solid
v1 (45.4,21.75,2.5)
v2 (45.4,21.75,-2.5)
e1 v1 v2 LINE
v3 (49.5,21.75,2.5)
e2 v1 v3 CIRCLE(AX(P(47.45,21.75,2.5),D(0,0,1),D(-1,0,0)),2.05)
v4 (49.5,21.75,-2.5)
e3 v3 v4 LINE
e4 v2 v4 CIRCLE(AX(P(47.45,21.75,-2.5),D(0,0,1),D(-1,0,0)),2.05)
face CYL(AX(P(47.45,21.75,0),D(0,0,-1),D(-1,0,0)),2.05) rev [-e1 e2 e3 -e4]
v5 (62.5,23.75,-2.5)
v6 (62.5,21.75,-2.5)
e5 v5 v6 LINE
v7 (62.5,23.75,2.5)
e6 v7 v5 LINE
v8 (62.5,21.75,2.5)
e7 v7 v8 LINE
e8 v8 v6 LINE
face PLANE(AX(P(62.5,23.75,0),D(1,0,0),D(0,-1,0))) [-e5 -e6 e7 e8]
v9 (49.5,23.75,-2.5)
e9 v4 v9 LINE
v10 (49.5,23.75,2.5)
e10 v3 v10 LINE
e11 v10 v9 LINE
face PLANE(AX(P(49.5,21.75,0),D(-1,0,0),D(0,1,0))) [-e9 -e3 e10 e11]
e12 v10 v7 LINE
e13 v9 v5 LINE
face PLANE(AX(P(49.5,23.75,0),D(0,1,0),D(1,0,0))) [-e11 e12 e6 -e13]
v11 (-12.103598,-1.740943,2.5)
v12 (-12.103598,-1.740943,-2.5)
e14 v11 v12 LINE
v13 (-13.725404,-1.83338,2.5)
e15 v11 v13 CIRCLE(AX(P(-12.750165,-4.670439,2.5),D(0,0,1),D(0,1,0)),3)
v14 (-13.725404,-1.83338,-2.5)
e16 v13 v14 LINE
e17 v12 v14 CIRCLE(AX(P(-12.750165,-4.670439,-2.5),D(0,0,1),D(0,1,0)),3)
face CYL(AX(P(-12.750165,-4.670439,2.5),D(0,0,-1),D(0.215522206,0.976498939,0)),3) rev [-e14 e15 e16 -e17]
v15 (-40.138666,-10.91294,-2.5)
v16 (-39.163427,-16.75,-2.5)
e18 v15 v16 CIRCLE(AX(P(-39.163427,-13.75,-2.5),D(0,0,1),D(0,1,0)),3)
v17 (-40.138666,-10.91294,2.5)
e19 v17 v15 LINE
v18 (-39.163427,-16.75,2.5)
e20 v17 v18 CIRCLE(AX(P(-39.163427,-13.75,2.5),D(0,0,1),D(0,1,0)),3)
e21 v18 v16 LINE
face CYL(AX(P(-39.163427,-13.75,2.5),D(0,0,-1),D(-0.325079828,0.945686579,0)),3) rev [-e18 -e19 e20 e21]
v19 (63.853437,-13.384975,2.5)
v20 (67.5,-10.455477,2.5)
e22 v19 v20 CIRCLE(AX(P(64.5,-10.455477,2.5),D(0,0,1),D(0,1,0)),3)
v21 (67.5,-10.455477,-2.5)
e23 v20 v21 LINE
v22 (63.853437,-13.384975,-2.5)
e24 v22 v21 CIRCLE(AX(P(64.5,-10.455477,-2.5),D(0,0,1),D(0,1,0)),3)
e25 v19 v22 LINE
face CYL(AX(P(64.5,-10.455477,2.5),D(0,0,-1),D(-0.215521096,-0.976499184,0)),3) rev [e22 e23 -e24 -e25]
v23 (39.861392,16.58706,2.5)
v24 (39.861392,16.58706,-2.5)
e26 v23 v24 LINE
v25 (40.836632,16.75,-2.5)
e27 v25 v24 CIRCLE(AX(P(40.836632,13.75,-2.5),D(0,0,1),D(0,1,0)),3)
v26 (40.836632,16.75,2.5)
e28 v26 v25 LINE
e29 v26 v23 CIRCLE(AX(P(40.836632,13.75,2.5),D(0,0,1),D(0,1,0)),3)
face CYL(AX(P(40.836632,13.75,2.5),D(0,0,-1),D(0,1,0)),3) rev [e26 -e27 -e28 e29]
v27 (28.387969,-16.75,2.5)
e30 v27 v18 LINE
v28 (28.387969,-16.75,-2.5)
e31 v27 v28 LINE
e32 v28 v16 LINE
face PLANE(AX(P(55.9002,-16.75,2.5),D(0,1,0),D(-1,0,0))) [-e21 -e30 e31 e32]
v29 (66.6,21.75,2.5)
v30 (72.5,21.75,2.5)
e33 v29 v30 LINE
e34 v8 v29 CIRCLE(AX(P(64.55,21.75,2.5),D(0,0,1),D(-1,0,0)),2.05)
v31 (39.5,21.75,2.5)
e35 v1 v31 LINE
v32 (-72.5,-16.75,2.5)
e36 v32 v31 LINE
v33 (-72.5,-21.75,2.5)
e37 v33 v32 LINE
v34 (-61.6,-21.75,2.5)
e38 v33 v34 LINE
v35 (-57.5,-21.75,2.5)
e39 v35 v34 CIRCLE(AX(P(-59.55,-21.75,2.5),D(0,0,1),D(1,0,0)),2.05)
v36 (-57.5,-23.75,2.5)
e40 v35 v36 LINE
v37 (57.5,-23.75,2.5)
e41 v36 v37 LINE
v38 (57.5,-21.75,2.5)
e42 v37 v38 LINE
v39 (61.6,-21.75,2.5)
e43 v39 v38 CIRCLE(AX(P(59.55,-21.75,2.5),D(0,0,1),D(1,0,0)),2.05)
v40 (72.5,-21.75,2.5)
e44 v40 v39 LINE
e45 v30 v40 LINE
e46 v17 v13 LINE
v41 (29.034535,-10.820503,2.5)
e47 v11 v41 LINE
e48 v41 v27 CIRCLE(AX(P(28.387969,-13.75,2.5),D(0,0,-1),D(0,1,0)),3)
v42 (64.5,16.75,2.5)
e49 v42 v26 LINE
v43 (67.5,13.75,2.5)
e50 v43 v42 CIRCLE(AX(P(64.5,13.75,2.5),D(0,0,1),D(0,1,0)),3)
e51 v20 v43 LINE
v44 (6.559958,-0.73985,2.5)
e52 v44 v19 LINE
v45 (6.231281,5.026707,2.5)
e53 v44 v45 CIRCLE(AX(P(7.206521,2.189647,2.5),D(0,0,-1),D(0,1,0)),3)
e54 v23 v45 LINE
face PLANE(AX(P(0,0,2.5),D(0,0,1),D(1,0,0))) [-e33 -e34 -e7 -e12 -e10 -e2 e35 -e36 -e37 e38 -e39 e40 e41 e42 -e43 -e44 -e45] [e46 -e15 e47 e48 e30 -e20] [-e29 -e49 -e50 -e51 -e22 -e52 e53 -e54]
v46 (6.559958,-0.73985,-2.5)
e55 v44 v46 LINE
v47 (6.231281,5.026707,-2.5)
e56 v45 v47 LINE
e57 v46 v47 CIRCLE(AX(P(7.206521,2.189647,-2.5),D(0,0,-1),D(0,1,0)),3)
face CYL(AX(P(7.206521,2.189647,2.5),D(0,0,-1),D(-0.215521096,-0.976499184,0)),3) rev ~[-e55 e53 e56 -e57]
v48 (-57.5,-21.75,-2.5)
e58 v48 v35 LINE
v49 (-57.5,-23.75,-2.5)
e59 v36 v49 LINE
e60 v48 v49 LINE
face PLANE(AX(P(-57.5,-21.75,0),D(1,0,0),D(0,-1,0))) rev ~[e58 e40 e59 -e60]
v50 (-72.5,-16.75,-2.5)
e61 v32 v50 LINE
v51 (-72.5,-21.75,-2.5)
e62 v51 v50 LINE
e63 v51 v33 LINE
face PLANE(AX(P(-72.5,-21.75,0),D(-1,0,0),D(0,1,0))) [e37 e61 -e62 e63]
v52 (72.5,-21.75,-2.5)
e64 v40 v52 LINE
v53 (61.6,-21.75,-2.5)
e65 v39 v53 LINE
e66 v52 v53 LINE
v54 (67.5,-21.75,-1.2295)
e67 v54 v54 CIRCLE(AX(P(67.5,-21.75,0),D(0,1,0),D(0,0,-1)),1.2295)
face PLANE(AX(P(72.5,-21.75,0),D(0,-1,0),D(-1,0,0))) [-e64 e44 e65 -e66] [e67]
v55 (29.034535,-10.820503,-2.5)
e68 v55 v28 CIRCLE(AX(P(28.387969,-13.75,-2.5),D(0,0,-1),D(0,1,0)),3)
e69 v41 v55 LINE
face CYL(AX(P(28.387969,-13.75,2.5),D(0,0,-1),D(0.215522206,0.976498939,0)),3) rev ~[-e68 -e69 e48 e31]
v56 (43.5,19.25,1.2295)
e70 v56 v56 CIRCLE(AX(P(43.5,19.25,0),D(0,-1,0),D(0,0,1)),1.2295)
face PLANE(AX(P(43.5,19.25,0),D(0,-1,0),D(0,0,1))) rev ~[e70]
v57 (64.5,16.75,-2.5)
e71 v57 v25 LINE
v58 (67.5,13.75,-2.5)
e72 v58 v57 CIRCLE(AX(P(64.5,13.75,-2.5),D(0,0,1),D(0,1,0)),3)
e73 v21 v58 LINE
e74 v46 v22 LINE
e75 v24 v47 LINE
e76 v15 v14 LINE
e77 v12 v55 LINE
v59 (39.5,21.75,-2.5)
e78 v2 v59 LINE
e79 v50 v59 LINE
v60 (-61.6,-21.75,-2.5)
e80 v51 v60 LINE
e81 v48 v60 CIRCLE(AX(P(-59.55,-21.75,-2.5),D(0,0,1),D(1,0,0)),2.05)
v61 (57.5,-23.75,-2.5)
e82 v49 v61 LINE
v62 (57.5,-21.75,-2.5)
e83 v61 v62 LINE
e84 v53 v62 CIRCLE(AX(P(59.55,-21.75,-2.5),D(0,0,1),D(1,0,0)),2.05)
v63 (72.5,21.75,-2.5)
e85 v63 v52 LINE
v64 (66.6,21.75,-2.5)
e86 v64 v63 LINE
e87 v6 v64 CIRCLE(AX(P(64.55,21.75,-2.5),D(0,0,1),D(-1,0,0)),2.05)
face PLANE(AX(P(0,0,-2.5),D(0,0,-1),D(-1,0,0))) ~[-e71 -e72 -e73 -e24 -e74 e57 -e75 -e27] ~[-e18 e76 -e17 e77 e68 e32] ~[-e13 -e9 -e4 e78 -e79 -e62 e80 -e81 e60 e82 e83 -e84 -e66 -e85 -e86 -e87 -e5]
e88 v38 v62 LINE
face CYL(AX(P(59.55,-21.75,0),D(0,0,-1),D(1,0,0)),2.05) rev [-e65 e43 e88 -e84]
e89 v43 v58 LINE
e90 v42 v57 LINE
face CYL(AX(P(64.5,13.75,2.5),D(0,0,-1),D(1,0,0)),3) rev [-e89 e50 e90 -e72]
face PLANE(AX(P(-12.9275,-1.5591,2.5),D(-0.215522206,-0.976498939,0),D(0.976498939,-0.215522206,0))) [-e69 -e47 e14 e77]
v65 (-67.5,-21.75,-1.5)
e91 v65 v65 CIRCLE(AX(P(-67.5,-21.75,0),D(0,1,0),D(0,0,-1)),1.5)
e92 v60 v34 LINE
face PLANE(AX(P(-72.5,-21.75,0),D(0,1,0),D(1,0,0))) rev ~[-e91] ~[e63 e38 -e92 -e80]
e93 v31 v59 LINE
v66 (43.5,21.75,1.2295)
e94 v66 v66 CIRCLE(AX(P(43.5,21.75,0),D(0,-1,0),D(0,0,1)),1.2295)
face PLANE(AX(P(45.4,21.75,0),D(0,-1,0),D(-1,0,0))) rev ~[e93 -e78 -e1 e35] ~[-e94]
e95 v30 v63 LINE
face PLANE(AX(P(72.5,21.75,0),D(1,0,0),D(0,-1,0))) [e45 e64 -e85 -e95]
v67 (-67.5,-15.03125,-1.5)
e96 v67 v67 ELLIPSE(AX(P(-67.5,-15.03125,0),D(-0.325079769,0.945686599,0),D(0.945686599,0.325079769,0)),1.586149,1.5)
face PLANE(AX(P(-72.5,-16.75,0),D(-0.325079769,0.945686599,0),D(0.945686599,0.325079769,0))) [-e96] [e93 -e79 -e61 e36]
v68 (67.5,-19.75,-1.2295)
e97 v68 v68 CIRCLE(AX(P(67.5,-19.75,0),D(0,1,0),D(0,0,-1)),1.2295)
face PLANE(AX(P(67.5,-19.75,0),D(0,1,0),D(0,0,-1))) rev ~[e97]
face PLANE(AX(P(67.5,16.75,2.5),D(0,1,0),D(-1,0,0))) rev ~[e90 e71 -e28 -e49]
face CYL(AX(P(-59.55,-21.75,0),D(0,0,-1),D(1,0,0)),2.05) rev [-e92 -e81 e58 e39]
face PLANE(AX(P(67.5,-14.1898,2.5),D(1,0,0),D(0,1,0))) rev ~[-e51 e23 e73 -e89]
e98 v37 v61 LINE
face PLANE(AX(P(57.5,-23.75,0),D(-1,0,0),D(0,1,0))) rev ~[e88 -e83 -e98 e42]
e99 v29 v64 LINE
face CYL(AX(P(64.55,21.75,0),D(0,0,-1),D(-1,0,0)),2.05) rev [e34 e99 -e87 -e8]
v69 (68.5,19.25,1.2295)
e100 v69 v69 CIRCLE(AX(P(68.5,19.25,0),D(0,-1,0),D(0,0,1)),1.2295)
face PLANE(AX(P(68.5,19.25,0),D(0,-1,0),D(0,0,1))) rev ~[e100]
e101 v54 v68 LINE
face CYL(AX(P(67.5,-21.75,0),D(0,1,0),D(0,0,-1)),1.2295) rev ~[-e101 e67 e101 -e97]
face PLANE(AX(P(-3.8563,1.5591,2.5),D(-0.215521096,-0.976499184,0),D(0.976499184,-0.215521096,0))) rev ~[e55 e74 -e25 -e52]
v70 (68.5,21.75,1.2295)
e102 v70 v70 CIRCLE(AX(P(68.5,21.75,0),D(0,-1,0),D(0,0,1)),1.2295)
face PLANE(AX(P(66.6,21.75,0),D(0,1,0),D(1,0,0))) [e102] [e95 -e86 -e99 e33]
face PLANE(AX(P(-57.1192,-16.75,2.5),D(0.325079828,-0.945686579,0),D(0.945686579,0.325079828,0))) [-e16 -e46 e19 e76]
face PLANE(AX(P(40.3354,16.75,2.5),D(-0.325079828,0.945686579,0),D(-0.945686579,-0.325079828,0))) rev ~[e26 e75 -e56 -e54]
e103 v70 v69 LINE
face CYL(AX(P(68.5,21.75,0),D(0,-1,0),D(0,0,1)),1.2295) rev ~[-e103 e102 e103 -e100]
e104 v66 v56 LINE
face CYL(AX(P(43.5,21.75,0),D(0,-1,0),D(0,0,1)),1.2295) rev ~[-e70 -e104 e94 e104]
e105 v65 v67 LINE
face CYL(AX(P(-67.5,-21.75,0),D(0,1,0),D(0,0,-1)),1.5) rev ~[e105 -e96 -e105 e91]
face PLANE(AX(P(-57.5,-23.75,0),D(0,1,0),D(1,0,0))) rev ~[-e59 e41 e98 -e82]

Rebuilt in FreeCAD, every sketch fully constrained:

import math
import FreeCAD as App
import Part
import Sketcher
from FreeCAD import Vector
Q = App.Units.Quantity


def edges_at(feature, points):
    """Names of the edges that pass closest to the given points."""
    edges = feature.Shape.Edges
    near = lambda p: min(range(len(edges)), key=lambda i: edges[i].distToShape(Part.Vertex(*p))[0])
    return sorted({f"Edge{near(p) + 1}" for p in points})

doc = App.newDocument("Part")
body = doc.addObject("PartDesign::Body", "Body")

sketch1 = body.newObject("Sketcher::SketchObject", "Sketch")
sketch1.AttachmentSupport = (doc.getObject("XY_Plane"), [""])
sketch1.MapMode = "FlatFace"
sketch1.addGeometry(Part.LineSegment(Vector(-72.5, -16.8, 0), Vector(-72.5, -21.8, 0)), False)
sketch1.addGeometry(Part.LineSegment(Vector(-72.5, -21.8, 0), Vector(-61.6, -21.8, 0)), False)
sketch1.addGeometry(Part.ArcOfCircle(Part.Circle(Vector(-59.5, -21.8, 0), Vector(0, 0, 1), 2), math.radians(0), math.radians(180)), False)
sketch1.addGeometry(Part.LineSegment(Vector(-57.5, -21.8, 0), Vector(-57.5, -23.8, 0)), False)
sketch1.addGeometry(Part.LineSegment(Vector(-57.5, -23.8, 0), Vector(57.5, -23.8, 0)), False)
sketch1.addGeometry(Part.LineSegment(Vector(57.5, -23.8, 0), Vector(57.5, -21.8, 0)), False)
sketch1.addGeometry(Part.ArcOfCircle(Part.Circle(Vector(59.5, -21.8, 0), Vector(0, 0, 1), 2.1), math.radians(0), math.radians(180)), False)
sketch1.addGeometry(Part.LineSegment(Vector(61.6, -21.8, 0), Vector(72.5, -21.8, 0)), False)
sketch1.addGeometry(Part.LineSegment(Vector(72.5, -21.8, 0), Vector(72.5, 21.8, 0)), False)
sketch1.addGeometry(Part.LineSegment(Vector(72.5, 21.8, 0), Vector(66.6, 21.8, 0)), False)
sketch1.addGeometry(Part.ArcOfCircle(Part.Circle(Vector(64.5, 21.8, 0), Vector(0, 0, 1), 2), math.radians(180), math.radians(360)), False)
sketch1.addGeometry(Part.LineSegment(Vector(62.5, 21.8, 0), Vector(62.5, 23.8, 0)), False)
sketch1.addGeometry(Part.LineSegment(Vector(62.5, 23.8, 0), Vector(49.5, 23.8, 0)), False)
sketch1.addGeometry(Part.LineSegment(Vector(49.5, 23.8, 0), Vector(49.5, 21.8, 0)), False)
sketch1.addGeometry(Part.ArcOfCircle(Part.Circle(Vector(47.5, 21.8, 0), Vector(0, 0, 1), 2.1), math.radians(180), math.radians(360)), False)
sketch1.addGeometry(Part.LineSegment(Vector(45.4, 21.8, 0), Vector(39.5, 21.8, 0)), False)
sketch1.addGeometry(Part.LineSegment(Vector(39.5, 21.8, 0), Vector(-72.5, -16.8, 0)), False)
sketch1.addConstraint(Sketcher.Constraint("Coincident", 0, 2, 1, 1))
sketch1.addConstraint(Sketcher.Constraint("Coincident", 1, 2, 2, 2))
sketch1.addConstraint(Sketcher.Constraint("Tangent", 2, 1, 3, 1))
sketch1.addConstraint(Sketcher.Constraint("Coincident", 3, 2, 4, 1))
sketch1.addConstraint(Sketcher.Constraint("Coincident", 4, 2, 5, 1))
sketch1.addConstraint(Sketcher.Constraint("Tangent", 5, 2, 6, 2))
sketch1.addConstraint(Sketcher.Constraint("Coincident", 6, 1, 7, 1))
sketch1.addConstraint(Sketcher.Constraint("Coincident", 7, 2, 8, 1))
sketch1.addConstraint(Sketcher.Constraint("Coincident", 8, 2, 9, 1))
sketch1.addConstraint(Sketcher.Constraint("Coincident", 9, 2, 10, 2))
sketch1.addConstraint(Sketcher.Constraint("Tangent", 10, 1, 11, 1))
sketch1.addConstraint(Sketcher.Constraint("Coincident", 11, 2, 12, 1))
sketch1.addConstraint(Sketcher.Constraint("Coincident", 12, 2, 13, 1))
sketch1.addConstraint(Sketcher.Constraint("Tangent", 13, 2, 14, 2))
sketch1.addConstraint(Sketcher.Constraint("Coincident", 14, 1, 15, 1))
sketch1.addConstraint(Sketcher.Constraint("Coincident", 15, 2, 16, 1))
sketch1.addConstraint(Sketcher.Constraint("Coincident", 16, 2, 0, 1))
sketch1.addConstraint(Sketcher.Constraint("Vertical", 0))
sketch1.addConstraint(Sketcher.Constraint("Horizontal", 1))
sketch1.addConstraint(Sketcher.Constraint("Vertical", 3))
sketch1.addConstraint(Sketcher.Constraint("Horizontal", 4))
sketch1.addConstraint(Sketcher.Constraint("Vertical", 5))
sketch1.addConstraint(Sketcher.Constraint("Horizontal", 7))
sketch1.addConstraint(Sketcher.Constraint("Vertical", 8))
sketch1.addConstraint(Sketcher.Constraint("Horizontal", 9))
sketch1.addConstraint(Sketcher.Constraint("Vertical", 11))
sketch1.addConstraint(Sketcher.Constraint("Horizontal", 12))
sketch1.addConstraint(Sketcher.Constraint("Vertical", 13))
sketch1.addConstraint(Sketcher.Constraint("Horizontal", 15))
sketch1.addConstraint(Sketcher.Constraint("Equal", 2, 6))
sketch1.addConstraint(Sketcher.Constraint("Equal", 6, 10))
sketch1.addConstraint(Sketcher.Constraint("Equal", 10, 14))
sketch1.addConstraint(Sketcher.Constraint("Symmetric", 0, 2, 8, 2, -1, 1))
sketch1.addConstraint(Sketcher.Constraint("Symmetric", 2, 3, 6, 3, -2))
sketch1.addConstraint(Sketcher.Constraint("Horizontal", 10, 3, 14, 3))
sketch1.addConstraint(Sketcher.Constraint("Horizontal", 6, 3, 0, 2))
sketch1.addConstraint(Sketcher.Constraint("Horizontal", 5, 2, 6, 1))
sketch1.addConstraint(Sketcher.Constraint("Horizontal", 14, 3, 8, 2))
sketch1.addConstraint(Sketcher.Constraint("Horizontal", 13, 2, 14, 1))
sketch1.addConstraint(Sketcher.Constraint("Equal", 9, 15))
sketch1.addConstraint(Sketcher.Constraint("Equal", 5, 11))
sketch1.addConstraint(Sketcher.Constraint("DistanceY", 0, 2, 0, 1, Q("5 mm")))
sketch1.addConstraint(Sketcher.Constraint("DistanceY", 3, 2, 3, 1, Q("2 mm")))
sketch1.addConstraint(Sketcher.Constraint("Radius", 2, Q("2.05 mm")))
sketch1.addConstraint(Sketcher.Constraint("DistanceY", 8, 1, 8, 2, Q("43.5 mm")))
sketch1.addConstraint(Sketcher.Constraint("DistanceX", 6, 3, 10, 3, Q("5 mm")))
sketch1.addConstraint(Sketcher.Constraint("DistanceX", 10, 1, 8, 2, Q("10 mm")))
sketch1.addConstraint(Sketcher.Constraint("DistanceX", 4, 1, 4, 2, Q("115 mm")))
sketch1.addConstraint(Sketcher.Constraint("DistanceX", 12, 2, 12, 1, Q("13 mm")))
pad1 = body.newObject("PartDesign::Pad", "Pad")
pad1.Profile = sketch1
pad1.Length = 2.5
doc.recompute()

mirrored = body.newObject("PartDesign::Mirrored", "Mirrored")
mirrored.Originals = [pad1]
mirrored.MirrorPlane = (doc.getObject("XY_Plane"), [""])
body.Tip = mirrored

sketch2 = body.newObject("Sketcher::SketchObject", "Sketch001")
sketch2.AttachmentSupport = (doc.getObject("XZ_Plane"), [""])
sketch2.MapMode = "FlatFace"
sketch2.AttachmentOffset = App.Placement(Vector(0, 0, 21.75), App.Rotation())
sketch2.addGeometry(Part.Circle(Vector(67.5, 0, 0), Vector(0, 0, 1), 1.2), False)
sketch2.addConstraint(Sketcher.Constraint("PointOnObject", 0, 3, -1))
sketch2.addConstraint(Sketcher.Constraint("Diameter", 0, Q("2.459 mm")))
sketch2.addConstraint(Sketcher.Constraint("DistanceX", -1, 1, 0, 3, Q("67.5 mm")))
doc.recompute()
hole = body.newObject("PartDesign::Hole", "Hole")
hole.Profile = sketch2
hole.ThreadType = "None"
hole.Diameter = 2.459
hole.DepthType = "Dimension"
hole.Depth = 2
hole.DrillPoint = "Flat"

sketch3 = body.newObject("Sketcher::SketchObject", "Sketch002")
sketch3.AttachmentSupport = (doc.getObject("XZ_Plane"), [""])
sketch3.MapMode = "FlatFace"
sketch3.AttachmentOffset = App.Placement(Vector(0, 0, -21.75), App.Rotation())
sketch3.addGeometry(Part.Circle(Vector(68.5, 0, 0), Vector(0, 0, 1), 1.2), False)
sketch3.addGeometry(Part.Circle(Vector(43.5, 0, 0), Vector(0, 0, 1), 1.2), False)
sketch3.addConstraint(Sketcher.Constraint("Equal", 0, 1))
sketch3.addConstraint(Sketcher.Constraint("PointOnObject", 0, 3, -1))
sketch3.addConstraint(Sketcher.Constraint("PointOnObject", 1, 3, -1))
sketch3.addConstraint(Sketcher.Constraint("Diameter", 0, Q("2.459 mm")))
sketch3.addConstraint(Sketcher.Constraint("DistanceX", 1, 3, 0, 3, Q("25 mm")))
sketch3.addConstraint(Sketcher.Constraint("DistanceX", -1, 1, 0, 3, Q("68.5 mm")))
doc.recompute()
hole2 = body.newObject("PartDesign::Hole", "Hole001")
hole2.Profile = sketch3
hole2.ThreadType = "None"
hole2.Diameter = 2.459
hole2.DepthType = "Dimension"
hole2.Depth = 2.5
hole2.DrillPoint = "Flat"
hole2.Reversed = True

sketch4 = body.newObject("Sketcher::SketchObject", "Sketch003")
sketch4.AttachmentSupport = (doc.getObject("XY_Plane"), [""])
sketch4.MapMode = "FlatFace"
sketch4.AttachmentOffset = App.Placement(Vector(0, 0, 2.5), App.Rotation())
sketch4.addGeometry(Part.LineSegment(Vector(-4, 2, 0), Vector(68, -14, 0)), False)
sketch4.addGeometry(Part.LineSegment(Vector(68, -14, 0), Vector(68, 17, 0)), False)
sketch4.addGeometry(Part.LineSegment(Vector(68, 17, 0), Vector(40, 17, 0)), False)
sketch4.addGeometry(Part.LineSegment(Vector(40, 17, 0), Vector(-4, 2, 0)), False)
sketch4.addGeometry(Part.LineSegment(Vector(-57, -17, 0), Vector(56, -17, 0)), False)
sketch4.addGeometry(Part.LineSegment(Vector(56, -17, 0), Vector(-13, -2, 0)), False)
sketch4.addGeometry(Part.LineSegment(Vector(-13, -2, 0), Vector(-57, -17, 0)), False)
sketch4.addConstraint(Sketcher.Constraint("Coincident", 0, 2, 1, 1))
sketch4.addConstraint(Sketcher.Constraint("Coincident", 1, 2, 2, 1))
sketch4.addConstraint(Sketcher.Constraint("Coincident", 2, 2, 3, 1))
sketch4.addConstraint(Sketcher.Constraint("Coincident", 3, 2, 0, 1))
sketch4.addConstraint(Sketcher.Constraint("Coincident", 4, 2, 5, 1))
sketch4.addConstraint(Sketcher.Constraint("Coincident", 5, 2, 6, 1))
sketch4.addConstraint(Sketcher.Constraint("Coincident", 6, 2, 4, 1))
sketch4.addConstraint(Sketcher.Constraint("Vertical", 1))
sketch4.addConstraint(Sketcher.Constraint("Horizontal", 2))
sketch4.addConstraint(Sketcher.Constraint("Horizontal", 4))
sketch4.addConstraint(Sketcher.Constraint("Parallel", 0, 5))
sketch4.addConstraint(Sketcher.Constraint("Parallel", 3, 6))
sketch4.addConstraint(Sketcher.Constraint("Equal", 3, 6))
sketch4.addConstraint(Sketcher.Constraint("DistanceX", -1, 1, 0, 2, Q("67.5 mm")))
sketch4.addConstraint(Sketcher.Constraint("Angle", 3, Q("-161.0296 deg")))
sketch4.addConstraint(Sketcher.Constraint("DistanceY", 4, 2, 1, 2, Q("33.5 mm")))
sketch4.addConstraint(Sketcher.Constraint("DistanceY", -1, 1, 1, 2, Q("16.75 mm")))
sketch4.addConstraint(Sketcher.Constraint("DistanceX", 2, 2, 2, 1, Q("27.1646 mm")))
sketch4.addConstraint(Sketcher.Constraint("DistanceX", 4, 1, 4, 2, Q("113.0194 mm")))
sketch4.addConstraint(Sketcher.Constraint("DistanceY", 1, 1, 1, 2, Q("30.9398 mm")))
sketch4.addConstraint(Sketcher.Constraint("DistanceX", 5, 2, 2, 2, Q("53.263 mm")))
pocket1 = body.newObject("PartDesign::Pocket", "Pocket")
pocket1.Profile = sketch4
pocket1.Length = 10
doc.recompute()

fillet = body.newObject("PartDesign::Fillet", "Fillet")
fillet.Base = (pocket1, edges_at(pocket1, [
    (-3.856, 1.559, 0),
    (40.335, 16.75, 0),
    (67.5, -14.19, 0),
    (55.9, -16.75, 0),
    (-12.928, -1.559, 0),
    (-57.119, -16.75, 0),
    (67.5, 16.75, 0),
]))
fillet.Radius = 3

sketch5 = body.newObject("Sketcher::SketchObject", "Sketch004")
sketch5.AttachmentSupport = (doc.getObject("XZ_Plane"), [""])
sketch5.MapMode = "FlatFace"
sketch5.AttachmentOffset = App.Placement(Vector(0, 0, 21.75), App.Rotation())
sketch5.addGeometry(Part.Circle(Vector(-67.5, 0, 0), Vector(0, 0, 1), 1.5), False)
sketch5.addConstraint(Sketcher.Constraint("PointOnObject", 0, 3, -1))
sketch5.addConstraint(Sketcher.Constraint("Diameter", 0, Q("3 mm")))
sketch5.addConstraint(Sketcher.Constraint("DistanceX", 0, 3, -1, 1, Q("67.5 mm")))
doc.recompute()
hole3 = body.newObject("PartDesign::Hole", "Hole002")
hole3.Profile = sketch5
hole3.ThreadType = "None"
hole3.Diameter = 3
hole3.DepthType = "ThroughAll"

doc.recompute()
